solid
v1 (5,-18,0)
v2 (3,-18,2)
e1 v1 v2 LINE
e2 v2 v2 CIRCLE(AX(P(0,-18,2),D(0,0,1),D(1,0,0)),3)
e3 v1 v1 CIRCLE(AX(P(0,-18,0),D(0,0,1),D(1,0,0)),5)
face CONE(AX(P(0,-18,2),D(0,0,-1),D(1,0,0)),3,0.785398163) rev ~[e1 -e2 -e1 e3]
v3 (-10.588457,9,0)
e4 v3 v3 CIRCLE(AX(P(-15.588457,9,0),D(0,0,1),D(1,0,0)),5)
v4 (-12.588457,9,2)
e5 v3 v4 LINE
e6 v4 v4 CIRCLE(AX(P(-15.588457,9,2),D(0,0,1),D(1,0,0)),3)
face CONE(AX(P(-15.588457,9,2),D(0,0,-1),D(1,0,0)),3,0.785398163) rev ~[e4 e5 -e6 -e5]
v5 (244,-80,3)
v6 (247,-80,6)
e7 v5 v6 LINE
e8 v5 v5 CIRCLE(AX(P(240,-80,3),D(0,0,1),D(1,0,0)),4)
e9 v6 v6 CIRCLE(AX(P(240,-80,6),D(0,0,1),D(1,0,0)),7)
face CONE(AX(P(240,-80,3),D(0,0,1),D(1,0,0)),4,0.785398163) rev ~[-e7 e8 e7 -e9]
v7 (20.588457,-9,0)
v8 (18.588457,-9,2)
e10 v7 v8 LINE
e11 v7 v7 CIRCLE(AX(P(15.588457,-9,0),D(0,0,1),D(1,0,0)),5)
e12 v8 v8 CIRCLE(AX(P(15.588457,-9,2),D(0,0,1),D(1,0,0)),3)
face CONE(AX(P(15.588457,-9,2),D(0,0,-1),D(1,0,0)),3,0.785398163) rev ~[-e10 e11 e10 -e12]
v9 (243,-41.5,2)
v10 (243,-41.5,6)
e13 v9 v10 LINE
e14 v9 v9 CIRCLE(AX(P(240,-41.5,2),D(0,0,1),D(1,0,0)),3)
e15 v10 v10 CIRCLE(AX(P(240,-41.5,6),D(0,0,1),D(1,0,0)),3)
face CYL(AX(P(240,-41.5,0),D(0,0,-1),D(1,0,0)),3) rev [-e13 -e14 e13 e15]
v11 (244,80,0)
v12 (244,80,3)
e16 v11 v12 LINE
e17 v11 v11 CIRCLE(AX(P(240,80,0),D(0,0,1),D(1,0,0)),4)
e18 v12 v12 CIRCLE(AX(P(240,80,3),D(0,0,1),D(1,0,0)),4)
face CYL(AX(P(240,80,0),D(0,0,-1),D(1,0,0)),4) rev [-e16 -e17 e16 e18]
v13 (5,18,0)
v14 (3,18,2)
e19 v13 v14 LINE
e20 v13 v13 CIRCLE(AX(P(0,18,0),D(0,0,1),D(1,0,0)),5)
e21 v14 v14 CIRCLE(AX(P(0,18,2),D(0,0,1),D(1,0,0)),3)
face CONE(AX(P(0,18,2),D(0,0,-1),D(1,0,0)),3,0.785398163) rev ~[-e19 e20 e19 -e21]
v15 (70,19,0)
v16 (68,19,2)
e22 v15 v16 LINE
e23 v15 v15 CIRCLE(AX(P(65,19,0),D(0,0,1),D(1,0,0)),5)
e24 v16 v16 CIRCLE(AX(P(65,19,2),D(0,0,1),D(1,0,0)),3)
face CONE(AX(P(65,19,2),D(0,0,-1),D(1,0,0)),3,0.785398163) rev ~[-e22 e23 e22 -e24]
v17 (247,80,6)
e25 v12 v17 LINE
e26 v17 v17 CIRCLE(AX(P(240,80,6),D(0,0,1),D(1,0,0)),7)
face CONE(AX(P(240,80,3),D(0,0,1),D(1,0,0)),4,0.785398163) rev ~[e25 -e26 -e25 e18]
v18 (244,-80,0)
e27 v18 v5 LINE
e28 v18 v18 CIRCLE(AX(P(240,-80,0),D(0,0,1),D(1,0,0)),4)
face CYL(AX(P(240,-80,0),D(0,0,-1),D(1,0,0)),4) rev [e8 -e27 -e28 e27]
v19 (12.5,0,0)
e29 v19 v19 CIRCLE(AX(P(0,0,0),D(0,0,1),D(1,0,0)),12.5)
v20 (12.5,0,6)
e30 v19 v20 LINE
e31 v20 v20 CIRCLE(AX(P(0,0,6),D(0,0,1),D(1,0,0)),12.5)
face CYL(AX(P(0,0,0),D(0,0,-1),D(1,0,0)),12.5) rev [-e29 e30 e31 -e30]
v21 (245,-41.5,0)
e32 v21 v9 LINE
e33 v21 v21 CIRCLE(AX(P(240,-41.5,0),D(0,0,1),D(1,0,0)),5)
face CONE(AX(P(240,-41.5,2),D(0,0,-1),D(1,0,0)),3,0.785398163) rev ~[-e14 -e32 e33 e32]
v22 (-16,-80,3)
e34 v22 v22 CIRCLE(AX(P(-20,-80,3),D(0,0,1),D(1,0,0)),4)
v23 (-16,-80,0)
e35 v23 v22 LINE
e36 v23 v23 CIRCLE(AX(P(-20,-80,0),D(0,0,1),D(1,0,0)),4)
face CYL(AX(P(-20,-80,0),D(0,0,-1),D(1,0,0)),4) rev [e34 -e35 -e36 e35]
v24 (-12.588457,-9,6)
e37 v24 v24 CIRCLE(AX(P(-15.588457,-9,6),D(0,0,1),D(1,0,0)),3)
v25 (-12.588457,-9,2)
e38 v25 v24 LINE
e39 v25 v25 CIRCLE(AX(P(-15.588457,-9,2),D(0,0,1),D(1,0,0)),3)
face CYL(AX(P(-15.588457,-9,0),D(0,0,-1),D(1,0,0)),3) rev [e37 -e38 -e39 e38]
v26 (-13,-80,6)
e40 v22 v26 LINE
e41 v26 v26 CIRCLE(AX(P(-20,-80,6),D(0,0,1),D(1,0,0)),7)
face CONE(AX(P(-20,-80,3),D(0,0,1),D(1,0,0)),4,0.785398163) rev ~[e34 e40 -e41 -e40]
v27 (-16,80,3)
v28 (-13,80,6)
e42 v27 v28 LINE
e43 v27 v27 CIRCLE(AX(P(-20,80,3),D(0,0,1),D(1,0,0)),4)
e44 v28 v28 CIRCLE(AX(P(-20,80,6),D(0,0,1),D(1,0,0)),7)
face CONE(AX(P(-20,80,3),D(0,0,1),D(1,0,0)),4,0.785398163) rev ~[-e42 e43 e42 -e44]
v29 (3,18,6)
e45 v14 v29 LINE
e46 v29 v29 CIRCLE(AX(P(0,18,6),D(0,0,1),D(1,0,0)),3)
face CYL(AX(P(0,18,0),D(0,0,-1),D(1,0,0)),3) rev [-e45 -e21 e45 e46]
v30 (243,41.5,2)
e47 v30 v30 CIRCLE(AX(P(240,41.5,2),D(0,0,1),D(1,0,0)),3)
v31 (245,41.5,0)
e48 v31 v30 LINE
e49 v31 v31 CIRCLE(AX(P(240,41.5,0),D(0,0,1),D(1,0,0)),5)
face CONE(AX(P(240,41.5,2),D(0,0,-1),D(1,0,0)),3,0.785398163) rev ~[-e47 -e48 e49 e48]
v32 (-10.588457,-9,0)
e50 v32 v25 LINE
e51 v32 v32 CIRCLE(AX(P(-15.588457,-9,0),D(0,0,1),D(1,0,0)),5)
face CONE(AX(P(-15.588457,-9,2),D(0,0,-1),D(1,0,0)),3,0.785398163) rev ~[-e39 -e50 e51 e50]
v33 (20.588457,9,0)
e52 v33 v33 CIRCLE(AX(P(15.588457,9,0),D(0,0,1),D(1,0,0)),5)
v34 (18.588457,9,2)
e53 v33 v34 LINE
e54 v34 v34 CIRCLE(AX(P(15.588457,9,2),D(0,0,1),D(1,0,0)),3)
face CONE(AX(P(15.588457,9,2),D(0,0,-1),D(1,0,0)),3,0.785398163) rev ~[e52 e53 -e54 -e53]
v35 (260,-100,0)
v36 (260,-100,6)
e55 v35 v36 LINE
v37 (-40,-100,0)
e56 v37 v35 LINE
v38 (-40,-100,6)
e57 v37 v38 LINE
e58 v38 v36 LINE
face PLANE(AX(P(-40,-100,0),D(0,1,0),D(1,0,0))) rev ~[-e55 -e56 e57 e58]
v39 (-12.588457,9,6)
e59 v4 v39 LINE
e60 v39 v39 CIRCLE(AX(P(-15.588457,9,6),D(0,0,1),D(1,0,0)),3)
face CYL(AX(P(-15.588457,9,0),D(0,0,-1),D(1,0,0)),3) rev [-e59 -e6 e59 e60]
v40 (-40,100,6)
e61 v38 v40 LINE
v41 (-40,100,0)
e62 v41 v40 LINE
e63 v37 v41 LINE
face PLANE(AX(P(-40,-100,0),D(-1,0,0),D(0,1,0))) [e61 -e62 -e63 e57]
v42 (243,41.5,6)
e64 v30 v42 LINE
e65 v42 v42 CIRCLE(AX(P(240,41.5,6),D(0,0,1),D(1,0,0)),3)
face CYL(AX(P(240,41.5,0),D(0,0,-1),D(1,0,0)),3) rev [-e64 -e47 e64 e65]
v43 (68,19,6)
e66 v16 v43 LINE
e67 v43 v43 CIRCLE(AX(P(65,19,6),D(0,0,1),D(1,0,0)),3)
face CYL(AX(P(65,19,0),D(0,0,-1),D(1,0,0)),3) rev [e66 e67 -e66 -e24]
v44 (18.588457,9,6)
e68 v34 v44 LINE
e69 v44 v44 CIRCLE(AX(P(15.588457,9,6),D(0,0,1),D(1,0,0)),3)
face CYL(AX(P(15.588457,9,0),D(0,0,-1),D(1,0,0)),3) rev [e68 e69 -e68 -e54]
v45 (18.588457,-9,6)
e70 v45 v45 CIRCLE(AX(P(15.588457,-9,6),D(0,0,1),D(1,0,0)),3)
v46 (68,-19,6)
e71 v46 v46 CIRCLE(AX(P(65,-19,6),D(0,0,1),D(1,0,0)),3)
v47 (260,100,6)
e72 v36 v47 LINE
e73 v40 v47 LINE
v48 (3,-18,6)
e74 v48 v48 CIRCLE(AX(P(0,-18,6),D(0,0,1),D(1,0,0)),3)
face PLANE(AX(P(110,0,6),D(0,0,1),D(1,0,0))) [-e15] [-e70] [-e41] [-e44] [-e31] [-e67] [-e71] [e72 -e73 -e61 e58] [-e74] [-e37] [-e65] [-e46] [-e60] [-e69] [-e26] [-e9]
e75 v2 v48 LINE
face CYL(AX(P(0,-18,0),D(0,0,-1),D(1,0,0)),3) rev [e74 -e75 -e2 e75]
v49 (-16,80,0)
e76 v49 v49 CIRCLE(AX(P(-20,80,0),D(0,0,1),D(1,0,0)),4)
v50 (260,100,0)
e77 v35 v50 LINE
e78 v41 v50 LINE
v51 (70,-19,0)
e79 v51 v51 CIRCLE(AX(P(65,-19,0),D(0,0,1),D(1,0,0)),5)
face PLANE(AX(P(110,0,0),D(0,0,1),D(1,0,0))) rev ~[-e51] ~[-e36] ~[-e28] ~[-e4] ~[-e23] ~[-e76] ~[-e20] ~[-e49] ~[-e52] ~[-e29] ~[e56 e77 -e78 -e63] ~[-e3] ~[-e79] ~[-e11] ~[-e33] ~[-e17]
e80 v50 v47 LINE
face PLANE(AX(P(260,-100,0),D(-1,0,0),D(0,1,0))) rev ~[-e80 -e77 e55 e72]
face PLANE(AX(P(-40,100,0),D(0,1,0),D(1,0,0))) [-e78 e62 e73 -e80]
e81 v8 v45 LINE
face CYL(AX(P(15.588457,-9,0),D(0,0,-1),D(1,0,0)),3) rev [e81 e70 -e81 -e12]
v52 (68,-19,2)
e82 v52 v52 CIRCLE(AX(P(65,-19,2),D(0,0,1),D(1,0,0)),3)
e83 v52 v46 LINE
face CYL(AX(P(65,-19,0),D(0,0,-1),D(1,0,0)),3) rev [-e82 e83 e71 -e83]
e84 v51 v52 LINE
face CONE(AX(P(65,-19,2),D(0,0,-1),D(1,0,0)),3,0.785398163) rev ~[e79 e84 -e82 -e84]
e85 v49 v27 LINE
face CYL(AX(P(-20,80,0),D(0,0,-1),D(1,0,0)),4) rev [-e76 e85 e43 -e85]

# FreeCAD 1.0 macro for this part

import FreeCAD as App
import Part
import Sketcher

V = App.Vector


def edges_at(feature, points):
    """Names of the edges that pass closest to the given points."""
    edges = feature.Shape.Edges
    near = lambda p: min(range(len(edges)), key=lambda i: edges[i].distToShape(Part.Vertex(*p))[0])
    return sorted({f"Edge{near(p) + 1}" for p in points})

doc = App.newDocument("Part")
body = doc.addObject("PartDesign::Body", "Body")

# Sketch on XY plane
sketch1 = doc.addObject("Sketcher::SketchObject", "Sketch")
body.addObject(sketch1)
sketch1.AttachmentSupport = (doc.XY_Plane, [""])
sketch1.MapMode = "FlatFace"
sketch1.addGeometry([
    Part.LineSegment(V(-40, 100, 0), V(-40, -100, 0)),  # 0
    Part.LineSegment(V(-40, -100, 0), V(260, -100, 0)),  # 1
    Part.LineSegment(V(260, -100, 0), V(260, 100, 0)),  # 2
    Part.LineSegment(V(260, 100, 0), V(-40, 100, 0)),  # 3
    Part.Circle(V(-20, -80, 0), V(0, 0, 1), 4),  # 4
    Part.Circle(V(0, -18, 0), V(0, 0, 1), 3),  # 5
    Part.Circle(V(-15.6, -9, 0), V(0, 0, 1), 3),  # 6
    Part.Circle(V(15.6, -9, 0), V(0, 0, 1), 3),  # 7
    Part.Circle(V(65, -19, 0), V(0, 0, 1), 3),  # 8
    Part.Circle(V(240, -80, 0), V(0, 0, 1), 4),  # 9
    Part.Circle(V(240, -41.5, 0), V(0, 0, 1), 3),  # 10
    Part.Circle(V(-15.6, 9, 0), V(0, 0, 1), 3),  # 11
    Part.Circle(V(0, 0, 0), V(0, 0, 1), 12.5),  # 12
    Part.Circle(V(0, 18, 0), V(0, 0, 1), 3),  # 13
    Part.Circle(V(15.6, 9, 0), V(0, 0, 1), 3),  # 14
    Part.Circle(V(65, 19, 0), V(0, 0, 1), 3),  # 15
    Part.Circle(V(-20, 80, 0), V(0, 0, 1), 4),  # 16
    Part.Circle(V(240, 41.5, 0), V(0, 0, 1), 3),  # 17
    Part.Circle(V(240, 80, 0), V(0, 0, 1), 4),  # 18
], False)
sketch1.addConstraint([
    Sketcher.Constraint("Coincident", 0, 2, 1, 1),
    Sketcher.Constraint("Coincident", 1, 2, 2, 1),
    Sketcher.Constraint("Coincident", 2, 2, 3, 1),
    Sketcher.Constraint("Coincident", 3, 2, 0, 1),
    Sketcher.Constraint("Vertical", 0),
    Sketcher.Constraint("Horizontal", 1),
    Sketcher.Constraint("Vertical", 2),
    Sketcher.Constraint("Horizontal", 3),
    Sketcher.Constraint("Coincident", 12, 3, -1, 1),
    Sketcher.Constraint("Equal", 5, 6),
    Sketcher.Constraint("Equal", 6, 7),
    Sketcher.Constraint("Equal", 7, 8),
    Sketcher.Constraint("Equal", 4, 9),
    Sketcher.Constraint("Equal", 8, 10),
    Sketcher.Constraint("Equal", 10, 11),
    Sketcher.Constraint("Equal", 11, 13),
    Sketcher.Constraint("Equal", 13, 14),
    Sketcher.Constraint("Equal", 14, 15),
    Sketcher.Constraint("Equal", 9, 16),
    Sketcher.Constraint("Equal", 15, 17),
    Sketcher.Constraint("Equal", 16, 18),
    Sketcher.Constraint("Symmetric", 7, 3, 11, 3, -1, 1),
    Sketcher.Constraint("Symmetric", 5, 3, 13, 3, -1, 1),
    Sketcher.Constraint("Symmetric", 6, 3, 14, 3, -1, 1),
    Sketcher.Constraint("Symmetric", 6, 3, 7, 3, -2),
    Sketcher.Constraint("Symmetric", 8, 3, 15, 3, -1),
    Sketcher.Constraint("Symmetric", 4, 3, 16, 3, -1),
    Sketcher.Constraint("Symmetric", 10, 3, 17, 3, -1),
    Sketcher.Constraint("Symmetric", 9, 3, 18, 3, -1),
    Sketcher.Constraint("PointOnObject", 5, 3, -2),
    Sketcher.Constraint("Horizontal", 4, 3, 9, 3),
    Sketcher.Constraint("Vertical", 9, 3, 10, 3),
    Sketcher.Constraint("Diameter", 4, 8.0),
    Sketcher.Constraint("Diameter", 5, 6.0),
    Sketcher.Constraint("Diameter", 12, 25.0),
    Sketcher.Constraint("DistanceX", 1, 1, 1, 2, 300.0),
    Sketcher.Constraint("DistanceY", 0, 2, 0, 1, 200.0),
    Sketcher.Constraint("DistanceX", 4, 3, -1, 1, 20.0),
    Sketcher.Constraint("DistanceY", 4, 3, -1, 1, 80.0),
    Sketcher.Constraint("DistanceY", 5, 3, -1, 1, 18.0),
    Sketcher.Constraint("DistanceY", 6, 3, -1, 1, 9.0),
    Sketcher.Constraint("DistanceX", -1, 1, 8, 3, 65.0),
    Sketcher.Constraint("DistanceY", 8, 3, -1, 1, 19.0),
    Sketcher.Constraint("DistanceX", -1, 1, 9, 3, 240.0),
    Sketcher.Constraint("DistanceX", 0, 2, -1, 1, 40.0),
    Sketcher.Constraint("DistanceY", 0, 2, -1, 1, 100.0),
    Sketcher.Constraint("DistanceY", 10, 3, 17, 3, 83.0),
    Sketcher.Constraint("DistanceX", 6, 3, -1, 1, 15.588457),
])
pad1 = doc.addObject("PartDesign::Pad", "Pad")
body.addObject(pad1)
pad1.Profile = sketch1
pad1.Length = 6
doc.recompute()

chamfer = doc.addObject("PartDesign::Chamfer", "Chamfer")
body.addObject(chamfer)
chamfer.Base = (pad1, edges_at(pad1, [
    (-24, 80, 6),
    (236, 80, 6),
    (236, -80, 6),
    (-24, -80, 6),
]))
chamfer.Size = 3
doc.recompute()

chamfer2 = doc.addObject("PartDesign::Chamfer", "Chamfer001")
body.addObject(chamfer2)
chamfer2.Base = (chamfer, edges_at(chamfer, [
    (62, -19, 0),
    (237, -41.5, 0),
    (237, 41.5, 0),
    (62, 19, 0),
    (-3, -18, 0),
    (-18.588, -9, 0),
    (-18.588, 9, 0),
    (12.588, -9, 0),
    (12.588, 9, 0),
    (-3, 18, 0),
]))
chamfer2.Size = 2

doc.recompute()
